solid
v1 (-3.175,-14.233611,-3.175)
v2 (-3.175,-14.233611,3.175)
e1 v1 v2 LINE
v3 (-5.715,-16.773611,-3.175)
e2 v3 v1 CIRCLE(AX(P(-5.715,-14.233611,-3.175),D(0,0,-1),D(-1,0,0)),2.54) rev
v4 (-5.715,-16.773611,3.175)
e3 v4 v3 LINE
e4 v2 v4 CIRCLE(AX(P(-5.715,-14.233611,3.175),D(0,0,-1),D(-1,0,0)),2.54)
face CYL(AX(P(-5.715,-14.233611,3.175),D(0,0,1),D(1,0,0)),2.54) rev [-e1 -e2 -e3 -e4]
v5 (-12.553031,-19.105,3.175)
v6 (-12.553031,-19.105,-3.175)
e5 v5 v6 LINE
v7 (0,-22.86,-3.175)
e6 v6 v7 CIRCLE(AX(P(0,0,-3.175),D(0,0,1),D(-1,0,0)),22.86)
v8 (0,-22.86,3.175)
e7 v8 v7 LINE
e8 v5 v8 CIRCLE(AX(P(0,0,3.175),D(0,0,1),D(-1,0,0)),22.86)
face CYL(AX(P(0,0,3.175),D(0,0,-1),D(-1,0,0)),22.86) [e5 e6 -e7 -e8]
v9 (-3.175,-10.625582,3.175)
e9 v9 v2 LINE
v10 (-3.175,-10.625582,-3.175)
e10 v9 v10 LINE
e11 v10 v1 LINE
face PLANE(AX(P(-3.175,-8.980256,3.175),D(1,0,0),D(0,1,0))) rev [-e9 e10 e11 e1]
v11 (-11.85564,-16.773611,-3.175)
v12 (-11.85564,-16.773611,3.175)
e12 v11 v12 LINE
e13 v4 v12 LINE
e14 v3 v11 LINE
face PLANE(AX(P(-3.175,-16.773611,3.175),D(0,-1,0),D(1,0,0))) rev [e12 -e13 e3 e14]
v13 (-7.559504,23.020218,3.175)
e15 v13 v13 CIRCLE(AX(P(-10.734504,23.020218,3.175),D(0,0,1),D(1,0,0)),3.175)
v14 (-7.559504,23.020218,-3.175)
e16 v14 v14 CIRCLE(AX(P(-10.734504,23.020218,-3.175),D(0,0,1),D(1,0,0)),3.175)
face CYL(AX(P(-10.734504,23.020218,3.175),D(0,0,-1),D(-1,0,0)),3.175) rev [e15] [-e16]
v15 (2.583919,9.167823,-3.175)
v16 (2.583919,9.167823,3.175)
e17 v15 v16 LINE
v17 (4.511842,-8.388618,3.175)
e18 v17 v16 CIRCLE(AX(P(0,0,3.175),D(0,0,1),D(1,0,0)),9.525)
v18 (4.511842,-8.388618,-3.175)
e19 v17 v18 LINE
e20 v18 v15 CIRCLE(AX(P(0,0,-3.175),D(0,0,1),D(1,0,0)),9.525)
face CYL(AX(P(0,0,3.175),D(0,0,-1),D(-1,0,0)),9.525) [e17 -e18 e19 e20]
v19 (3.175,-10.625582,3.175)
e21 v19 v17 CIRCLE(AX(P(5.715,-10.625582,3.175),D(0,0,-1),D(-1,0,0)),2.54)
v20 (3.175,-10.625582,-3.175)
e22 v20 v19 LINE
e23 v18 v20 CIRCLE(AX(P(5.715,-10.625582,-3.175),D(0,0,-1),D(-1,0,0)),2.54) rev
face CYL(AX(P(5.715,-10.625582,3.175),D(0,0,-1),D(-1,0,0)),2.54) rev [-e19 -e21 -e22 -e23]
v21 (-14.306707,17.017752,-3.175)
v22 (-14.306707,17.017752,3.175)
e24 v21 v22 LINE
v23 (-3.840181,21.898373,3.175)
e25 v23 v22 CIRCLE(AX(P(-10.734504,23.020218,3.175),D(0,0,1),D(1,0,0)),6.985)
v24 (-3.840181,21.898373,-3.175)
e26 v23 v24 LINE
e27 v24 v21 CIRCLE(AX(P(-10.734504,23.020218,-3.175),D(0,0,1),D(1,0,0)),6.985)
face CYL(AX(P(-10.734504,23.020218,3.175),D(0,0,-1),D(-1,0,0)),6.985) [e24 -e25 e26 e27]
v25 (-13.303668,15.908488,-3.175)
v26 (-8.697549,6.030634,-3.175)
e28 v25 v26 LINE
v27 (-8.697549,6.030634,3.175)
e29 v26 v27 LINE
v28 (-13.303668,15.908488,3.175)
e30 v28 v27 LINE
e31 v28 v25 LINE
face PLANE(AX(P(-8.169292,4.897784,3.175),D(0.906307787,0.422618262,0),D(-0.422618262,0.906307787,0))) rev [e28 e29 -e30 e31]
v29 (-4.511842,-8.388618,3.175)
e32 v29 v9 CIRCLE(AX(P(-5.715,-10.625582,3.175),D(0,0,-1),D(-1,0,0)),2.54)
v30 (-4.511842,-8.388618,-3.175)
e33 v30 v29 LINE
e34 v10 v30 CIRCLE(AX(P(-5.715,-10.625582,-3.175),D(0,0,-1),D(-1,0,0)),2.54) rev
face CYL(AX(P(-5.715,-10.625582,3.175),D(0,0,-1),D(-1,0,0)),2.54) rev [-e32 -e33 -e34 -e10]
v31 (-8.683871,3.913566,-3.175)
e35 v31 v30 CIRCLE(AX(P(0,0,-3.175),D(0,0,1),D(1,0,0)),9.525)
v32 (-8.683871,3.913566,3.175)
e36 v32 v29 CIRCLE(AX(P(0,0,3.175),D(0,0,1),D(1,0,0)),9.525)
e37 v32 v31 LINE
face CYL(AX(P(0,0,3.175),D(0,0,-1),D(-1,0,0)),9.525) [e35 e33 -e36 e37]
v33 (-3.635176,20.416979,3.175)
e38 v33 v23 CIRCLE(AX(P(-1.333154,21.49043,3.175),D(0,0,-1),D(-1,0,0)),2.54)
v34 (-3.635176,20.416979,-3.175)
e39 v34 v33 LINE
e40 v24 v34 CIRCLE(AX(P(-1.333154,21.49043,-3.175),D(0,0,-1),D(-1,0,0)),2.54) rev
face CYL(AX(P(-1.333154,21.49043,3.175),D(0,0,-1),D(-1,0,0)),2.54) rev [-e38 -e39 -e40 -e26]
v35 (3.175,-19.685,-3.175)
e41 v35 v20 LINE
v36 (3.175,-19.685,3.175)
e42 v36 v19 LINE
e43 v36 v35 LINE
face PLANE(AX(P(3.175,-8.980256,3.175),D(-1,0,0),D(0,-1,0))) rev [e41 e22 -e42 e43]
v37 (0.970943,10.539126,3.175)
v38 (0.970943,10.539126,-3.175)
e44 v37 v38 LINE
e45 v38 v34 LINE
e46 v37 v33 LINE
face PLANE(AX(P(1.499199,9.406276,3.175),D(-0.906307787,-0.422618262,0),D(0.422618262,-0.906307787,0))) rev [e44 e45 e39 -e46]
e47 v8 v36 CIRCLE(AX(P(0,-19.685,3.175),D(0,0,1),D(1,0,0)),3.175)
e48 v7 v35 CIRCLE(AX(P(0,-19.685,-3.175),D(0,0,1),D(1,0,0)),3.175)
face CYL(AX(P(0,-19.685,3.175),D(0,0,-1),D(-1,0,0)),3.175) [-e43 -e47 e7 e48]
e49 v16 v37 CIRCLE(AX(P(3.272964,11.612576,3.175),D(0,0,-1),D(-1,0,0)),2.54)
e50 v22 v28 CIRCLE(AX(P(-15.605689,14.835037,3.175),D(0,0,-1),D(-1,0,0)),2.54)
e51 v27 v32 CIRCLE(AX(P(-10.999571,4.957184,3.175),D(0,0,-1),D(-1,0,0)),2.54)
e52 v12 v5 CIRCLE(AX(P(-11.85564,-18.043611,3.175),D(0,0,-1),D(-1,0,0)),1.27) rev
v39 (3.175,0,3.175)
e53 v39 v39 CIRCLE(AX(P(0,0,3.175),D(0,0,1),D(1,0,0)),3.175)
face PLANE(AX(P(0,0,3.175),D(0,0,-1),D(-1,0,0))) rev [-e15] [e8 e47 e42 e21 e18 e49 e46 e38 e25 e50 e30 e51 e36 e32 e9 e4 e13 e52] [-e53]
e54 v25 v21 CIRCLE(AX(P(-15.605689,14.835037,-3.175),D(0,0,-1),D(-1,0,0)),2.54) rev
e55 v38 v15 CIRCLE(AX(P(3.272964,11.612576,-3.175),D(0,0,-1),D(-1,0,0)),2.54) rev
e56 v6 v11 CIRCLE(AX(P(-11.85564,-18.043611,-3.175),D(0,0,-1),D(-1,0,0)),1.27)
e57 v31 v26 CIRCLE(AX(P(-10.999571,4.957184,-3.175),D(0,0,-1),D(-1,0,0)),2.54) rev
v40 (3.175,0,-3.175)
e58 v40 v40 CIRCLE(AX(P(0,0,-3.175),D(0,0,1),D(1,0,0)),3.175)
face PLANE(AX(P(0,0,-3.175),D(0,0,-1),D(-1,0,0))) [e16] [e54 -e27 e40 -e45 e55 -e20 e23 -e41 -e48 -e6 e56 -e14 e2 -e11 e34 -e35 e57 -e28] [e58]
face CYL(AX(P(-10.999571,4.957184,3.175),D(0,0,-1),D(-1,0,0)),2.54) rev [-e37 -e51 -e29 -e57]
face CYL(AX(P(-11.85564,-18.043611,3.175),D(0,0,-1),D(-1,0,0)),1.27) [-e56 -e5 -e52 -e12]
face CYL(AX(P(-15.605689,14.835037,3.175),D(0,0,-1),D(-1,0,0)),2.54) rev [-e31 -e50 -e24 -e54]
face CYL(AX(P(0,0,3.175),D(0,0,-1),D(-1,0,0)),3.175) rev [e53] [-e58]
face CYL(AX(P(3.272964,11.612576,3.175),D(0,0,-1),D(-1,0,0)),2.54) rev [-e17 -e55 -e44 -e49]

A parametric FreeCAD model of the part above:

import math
import FreeCAD as App
import Part
import Sketcher
Q = App.Units.Quantity


def edges_at(feature, points):
    """Names of the edges that pass closest to the given points."""
    edges = feature.Shape.Edges
    near = lambda p: min(range(len(edges)), key=lambda i: edges[i].distToShape(Part.Vertex(*p))[0])
    return sorted({f"Edge{near(p) + 1}" for p in points})

doc = App.newDocument("Part")
body = doc.addObject("PartDesign::Body", "Body")

sketch1 = body.newObject("Sketcher::SketchObject", "Sketch")
sketch1.AttachmentSupport = (doc.getObject("XY_Plane"), [""])
sketch1.MapMode = "FlatFace"
sketch1.addGeometry(Part.LineSegment(App.Vector(1.5, 9.4, 0), App.Vector(-4, 21.2, 0)), False)
sketch1.addGeometry(Part.ArcOfCircle(Part.Circle(App.Vector(-10.7, 23, 0), App.Vector(0, 0, 1), 7), math.radians(-15), math.radians(245)), False)
sketch1.addGeometry(Part.LineSegment(App.Vector(-13.7, 16.7, 0), App.Vector(-8.2, 4.9, 0)), False)
sketch1.addGeometry(Part.ArcOfCircle(Part.Circle(App.Vector(0, 0, 0), App.Vector(0, 0, 1), 9.5), math.radians(149), math.radians(251)), False)
sketch1.addGeometry(Part.LineSegment(App.Vector(-3.2, -9, 0), App.Vector(-3.2, -16.8, 0)), False)
sketch1.addGeometry(Part.LineSegment(App.Vector(-3.2, -16.8, 0), App.Vector(-15.5, -16.8, 0)), False)
sketch1.addGeometry(Part.ArcOfCircle(Part.Circle(App.Vector(0, 0, 0), App.Vector(0, 0, 1), 22.9), math.radians(-133), math.radians(-90)), False)
sketch1.addGeometry(Part.ArcOfCircle(Part.Circle(App.Vector(0, -19.7, 0), App.Vector(0, 0, 1), 3.2), math.radians(-90), math.radians(0)), False)
sketch1.addGeometry(Part.LineSegment(App.Vector(3.2, -19.7, 0), App.Vector(3.2, -9, 0)), False)
sketch1.addGeometry(Part.ArcOfCircle(Part.Circle(App.Vector(0, 0, 0), App.Vector(0, 0, 1), 9.5), math.radians(-71), math.radians(81)), False)
sketch1.addGeometry(Part.Circle(App.Vector(0, 0, 0), App.Vector(0, 0, 1), 3.2), False)
sketch1.addGeometry(Part.Circle(App.Vector(-10.7, 23, 0), App.Vector(0, 0, 1), 3.2), False)
sketch1.addConstraint(Sketcher.Constraint("Coincident", 0, 2, 1, 1))
sketch1.addConstraint(Sketcher.Constraint("Coincident", 1, 2, 2, 1))
sketch1.addConstraint(Sketcher.Constraint("Coincident", 2, 2, 3, 1))
sketch1.addConstraint(Sketcher.Constraint("Coincident", 3, 2, 4, 1))
sketch1.addConstraint(Sketcher.Constraint("Coincident", 4, 2, 5, 1))
sketch1.addConstraint(Sketcher.Constraint("Coincident", 5, 2, 6, 1))
sketch1.addConstraint(Sketcher.Constraint("Tangent", 6, 2, 7, 1))
sketch1.addConstraint(Sketcher.Constraint("Tangent", 7, 2, 8, 1))
sketch1.addConstraint(Sketcher.Constraint("Coincident", 8, 2, 9, 1))
sketch1.addConstraint(Sketcher.Constraint("Coincident", 9, 2, 0, 1))
sketch1.addConstraint(Sketcher.Constraint("Vertical", 4))
sketch1.addConstraint(Sketcher.Constraint("Horizontal", 5))
sketch1.addConstraint(Sketcher.Constraint("Vertical", 8))
sketch1.addConstraint(Sketcher.Constraint("Coincident", 3, 3, -1, 1))
sketch1.addConstraint(Sketcher.Constraint("Coincident", 6, 3, -1, 1))
sketch1.addConstraint(Sketcher.Constraint("Coincident", 9, 3, -1, 1))
sketch1.addConstraint(Sketcher.Constraint("Coincident", 10, 3, -1, 1))
sketch1.addConstraint(Sketcher.Constraint("Coincident", 11, 3, 1, 3))
sketch1.addConstraint(Sketcher.Constraint("Equal", 3, 9))
sketch1.addConstraint(Sketcher.Constraint("Equal", 7, 10))
sketch1.addConstraint(Sketcher.Constraint("Equal", 10, 11))
sketch1.addConstraint(Sketcher.Constraint("PointOnObject", 7, 3, -2))
sketch1.addConstraint(Sketcher.Constraint("Parallel", 0, 2))
sketch1.addConstraint(Sketcher.Constraint("Horizontal", 3, 2, 8, 2))
sketch1.addConstraint(Sketcher.Constraint("Equal", 0, 2))
sketch1.addConstraint(Sketcher.Constraint("Radius", 6, Q("0.9 in")))
sketch1.addConstraint(Sketcher.Constraint("Diameter", 10, Q("0.25 in")))
sketch1.addConstraint(Sketcher.Constraint("Angle", 0, Q("115 deg")))
sketch1.addConstraint(Sketcher.Constraint("Radius", 1, Q("0.275 in")))
sketch1.addConstraint(Sketcher.Constraint("Radius", 3, Q("0.375 in")))
sketch1.addConstraint(Sketcher.Constraint("DistanceX", 5, 2, 5, 1, Q("12.356438 mm")))
sketch1.addConstraint(Sketcher.Constraint("DistanceX", -1, 1, 9, 2, Q("1.499199 mm")))
sketch1.addConstraint(Sketcher.Constraint("DistanceY", -1, 1, 0, 2, Q("21.187159 mm")))
sketch1.addConstraint(Sketcher.Constraint("DistanceX", 1, 2, -1, 1, Q("13.662808 mm")))
pad1 = body.newObject("PartDesign::Pad", "Pad")
pad1.Profile = sketch1
pad1.Length = Q("0.25 in")
pad1.Midplane = True
doc.recompute()

fillet = body.newObject("PartDesign::Fillet", "Fillet")
fillet.Base = (pad1, edges_at(pad1, [
    (-3.175, -16.774, 0),
    (-3.175, -8.98, 0),
    (-8.169, 4.898, 0),
    (-13.663, 16.679, 0),
    (-3.994, 21.187, 0),
    (1.499, 9.406, 0),
    (3.175, -8.98, 0),
]))
fillet.Radius = Q("0.1 in")
doc.recompute()

fillet2 = body.newObject("PartDesign::Fillet", "Fillet001")
fillet2.Base = (fillet, edges_at(fillet, [(-15.531, -16.774, 0)]))
fillet2.Radius = Q("0.05 in")

doc.recompute()
